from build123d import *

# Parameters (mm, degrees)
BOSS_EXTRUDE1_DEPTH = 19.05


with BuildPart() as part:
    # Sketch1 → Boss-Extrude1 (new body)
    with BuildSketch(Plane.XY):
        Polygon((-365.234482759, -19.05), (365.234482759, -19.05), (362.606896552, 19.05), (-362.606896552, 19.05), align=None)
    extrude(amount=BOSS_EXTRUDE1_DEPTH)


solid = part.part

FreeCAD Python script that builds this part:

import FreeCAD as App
import Part
import Sketcher
Q = App.Units.Quantity

doc = App.newDocument("Part")
body = doc.addObject("PartDesign::Body", "Body")

# Sketch on XY plane
sketch1 = body.newObject("Sketcher::SketchObject", "Sketch")
sketch1.AttachmentSupport = (doc.getObject("XY_Plane"), [""])
sketch1.MapMode = "FlatFace"
sketch1.addGeometry(Part.LineSegment(App.Vector(-365.234483, -19.05, 0), App.Vector(365.234483, -19.05, 0)), False)
sketch1.addGeometry(Part.LineSegment(App.Vector(365.234483, -19.05, 0), App.Vector(362.606897, 19.05, 0)), False)
sketch1.addGeometry(Part.LineSegment(App.Vector(362.606897, 19.05, 0), App.Vector(-362.606897, 19.05, 0)), False)
sketch1.addGeometry(Part.LineSegment(App.Vector(-362.606897, 19.05, 0), App.Vector(-365.234483, -19.05, 0)), False)
sketch1.addConstraint(Sketcher.Constraint("Coincident", 0, 2, 1, 1))
sketch1.addConstraint(Sketcher.Constraint("Coincident", 1, 2, 2, 1))
sketch1.addConstraint(Sketcher.Constraint("Coincident", 2, 2, 3, 1))
sketch1.addConstraint(Sketcher.Constraint("Coincident", 3, 2, 0, 1))
sketch1.addConstraint(Sketcher.Constraint("Horizontal", 0))
sketch1.addConstraint(Sketcher.Constraint("Horizontal", 2))
sketch1.addConstraint(Sketcher.Constraint("Equal", 1, 3))
sketch1.addConstraint(Sketcher.Constraint("DistanceY", 0, 2, 1, 2, Q("1.5 in")))
sketch1.addConstraint(Sketcher.Constraint("DistanceY", 0, 2, -1, 1, Q("0.75 in")))
sketch1.addConstraint(Sketcher.Constraint("Distance", 1, Q("38.190499 mm")))
sketch1.addConstraint(Sketcher.Constraint("DistanceX", 0, 1, 0, 2, Q("730.468966 mm")))
sketch1.addConstraint(Sketcher.Constraint("DistanceX", -1, 1, 0, 2, Q("365.234483 mm")))
pad1 = body.newObject("PartDesign::Pad", "Pad")
pad1.Profile = sketch1
pad1.Length = Q("0.75 in")

doc.recompute()
